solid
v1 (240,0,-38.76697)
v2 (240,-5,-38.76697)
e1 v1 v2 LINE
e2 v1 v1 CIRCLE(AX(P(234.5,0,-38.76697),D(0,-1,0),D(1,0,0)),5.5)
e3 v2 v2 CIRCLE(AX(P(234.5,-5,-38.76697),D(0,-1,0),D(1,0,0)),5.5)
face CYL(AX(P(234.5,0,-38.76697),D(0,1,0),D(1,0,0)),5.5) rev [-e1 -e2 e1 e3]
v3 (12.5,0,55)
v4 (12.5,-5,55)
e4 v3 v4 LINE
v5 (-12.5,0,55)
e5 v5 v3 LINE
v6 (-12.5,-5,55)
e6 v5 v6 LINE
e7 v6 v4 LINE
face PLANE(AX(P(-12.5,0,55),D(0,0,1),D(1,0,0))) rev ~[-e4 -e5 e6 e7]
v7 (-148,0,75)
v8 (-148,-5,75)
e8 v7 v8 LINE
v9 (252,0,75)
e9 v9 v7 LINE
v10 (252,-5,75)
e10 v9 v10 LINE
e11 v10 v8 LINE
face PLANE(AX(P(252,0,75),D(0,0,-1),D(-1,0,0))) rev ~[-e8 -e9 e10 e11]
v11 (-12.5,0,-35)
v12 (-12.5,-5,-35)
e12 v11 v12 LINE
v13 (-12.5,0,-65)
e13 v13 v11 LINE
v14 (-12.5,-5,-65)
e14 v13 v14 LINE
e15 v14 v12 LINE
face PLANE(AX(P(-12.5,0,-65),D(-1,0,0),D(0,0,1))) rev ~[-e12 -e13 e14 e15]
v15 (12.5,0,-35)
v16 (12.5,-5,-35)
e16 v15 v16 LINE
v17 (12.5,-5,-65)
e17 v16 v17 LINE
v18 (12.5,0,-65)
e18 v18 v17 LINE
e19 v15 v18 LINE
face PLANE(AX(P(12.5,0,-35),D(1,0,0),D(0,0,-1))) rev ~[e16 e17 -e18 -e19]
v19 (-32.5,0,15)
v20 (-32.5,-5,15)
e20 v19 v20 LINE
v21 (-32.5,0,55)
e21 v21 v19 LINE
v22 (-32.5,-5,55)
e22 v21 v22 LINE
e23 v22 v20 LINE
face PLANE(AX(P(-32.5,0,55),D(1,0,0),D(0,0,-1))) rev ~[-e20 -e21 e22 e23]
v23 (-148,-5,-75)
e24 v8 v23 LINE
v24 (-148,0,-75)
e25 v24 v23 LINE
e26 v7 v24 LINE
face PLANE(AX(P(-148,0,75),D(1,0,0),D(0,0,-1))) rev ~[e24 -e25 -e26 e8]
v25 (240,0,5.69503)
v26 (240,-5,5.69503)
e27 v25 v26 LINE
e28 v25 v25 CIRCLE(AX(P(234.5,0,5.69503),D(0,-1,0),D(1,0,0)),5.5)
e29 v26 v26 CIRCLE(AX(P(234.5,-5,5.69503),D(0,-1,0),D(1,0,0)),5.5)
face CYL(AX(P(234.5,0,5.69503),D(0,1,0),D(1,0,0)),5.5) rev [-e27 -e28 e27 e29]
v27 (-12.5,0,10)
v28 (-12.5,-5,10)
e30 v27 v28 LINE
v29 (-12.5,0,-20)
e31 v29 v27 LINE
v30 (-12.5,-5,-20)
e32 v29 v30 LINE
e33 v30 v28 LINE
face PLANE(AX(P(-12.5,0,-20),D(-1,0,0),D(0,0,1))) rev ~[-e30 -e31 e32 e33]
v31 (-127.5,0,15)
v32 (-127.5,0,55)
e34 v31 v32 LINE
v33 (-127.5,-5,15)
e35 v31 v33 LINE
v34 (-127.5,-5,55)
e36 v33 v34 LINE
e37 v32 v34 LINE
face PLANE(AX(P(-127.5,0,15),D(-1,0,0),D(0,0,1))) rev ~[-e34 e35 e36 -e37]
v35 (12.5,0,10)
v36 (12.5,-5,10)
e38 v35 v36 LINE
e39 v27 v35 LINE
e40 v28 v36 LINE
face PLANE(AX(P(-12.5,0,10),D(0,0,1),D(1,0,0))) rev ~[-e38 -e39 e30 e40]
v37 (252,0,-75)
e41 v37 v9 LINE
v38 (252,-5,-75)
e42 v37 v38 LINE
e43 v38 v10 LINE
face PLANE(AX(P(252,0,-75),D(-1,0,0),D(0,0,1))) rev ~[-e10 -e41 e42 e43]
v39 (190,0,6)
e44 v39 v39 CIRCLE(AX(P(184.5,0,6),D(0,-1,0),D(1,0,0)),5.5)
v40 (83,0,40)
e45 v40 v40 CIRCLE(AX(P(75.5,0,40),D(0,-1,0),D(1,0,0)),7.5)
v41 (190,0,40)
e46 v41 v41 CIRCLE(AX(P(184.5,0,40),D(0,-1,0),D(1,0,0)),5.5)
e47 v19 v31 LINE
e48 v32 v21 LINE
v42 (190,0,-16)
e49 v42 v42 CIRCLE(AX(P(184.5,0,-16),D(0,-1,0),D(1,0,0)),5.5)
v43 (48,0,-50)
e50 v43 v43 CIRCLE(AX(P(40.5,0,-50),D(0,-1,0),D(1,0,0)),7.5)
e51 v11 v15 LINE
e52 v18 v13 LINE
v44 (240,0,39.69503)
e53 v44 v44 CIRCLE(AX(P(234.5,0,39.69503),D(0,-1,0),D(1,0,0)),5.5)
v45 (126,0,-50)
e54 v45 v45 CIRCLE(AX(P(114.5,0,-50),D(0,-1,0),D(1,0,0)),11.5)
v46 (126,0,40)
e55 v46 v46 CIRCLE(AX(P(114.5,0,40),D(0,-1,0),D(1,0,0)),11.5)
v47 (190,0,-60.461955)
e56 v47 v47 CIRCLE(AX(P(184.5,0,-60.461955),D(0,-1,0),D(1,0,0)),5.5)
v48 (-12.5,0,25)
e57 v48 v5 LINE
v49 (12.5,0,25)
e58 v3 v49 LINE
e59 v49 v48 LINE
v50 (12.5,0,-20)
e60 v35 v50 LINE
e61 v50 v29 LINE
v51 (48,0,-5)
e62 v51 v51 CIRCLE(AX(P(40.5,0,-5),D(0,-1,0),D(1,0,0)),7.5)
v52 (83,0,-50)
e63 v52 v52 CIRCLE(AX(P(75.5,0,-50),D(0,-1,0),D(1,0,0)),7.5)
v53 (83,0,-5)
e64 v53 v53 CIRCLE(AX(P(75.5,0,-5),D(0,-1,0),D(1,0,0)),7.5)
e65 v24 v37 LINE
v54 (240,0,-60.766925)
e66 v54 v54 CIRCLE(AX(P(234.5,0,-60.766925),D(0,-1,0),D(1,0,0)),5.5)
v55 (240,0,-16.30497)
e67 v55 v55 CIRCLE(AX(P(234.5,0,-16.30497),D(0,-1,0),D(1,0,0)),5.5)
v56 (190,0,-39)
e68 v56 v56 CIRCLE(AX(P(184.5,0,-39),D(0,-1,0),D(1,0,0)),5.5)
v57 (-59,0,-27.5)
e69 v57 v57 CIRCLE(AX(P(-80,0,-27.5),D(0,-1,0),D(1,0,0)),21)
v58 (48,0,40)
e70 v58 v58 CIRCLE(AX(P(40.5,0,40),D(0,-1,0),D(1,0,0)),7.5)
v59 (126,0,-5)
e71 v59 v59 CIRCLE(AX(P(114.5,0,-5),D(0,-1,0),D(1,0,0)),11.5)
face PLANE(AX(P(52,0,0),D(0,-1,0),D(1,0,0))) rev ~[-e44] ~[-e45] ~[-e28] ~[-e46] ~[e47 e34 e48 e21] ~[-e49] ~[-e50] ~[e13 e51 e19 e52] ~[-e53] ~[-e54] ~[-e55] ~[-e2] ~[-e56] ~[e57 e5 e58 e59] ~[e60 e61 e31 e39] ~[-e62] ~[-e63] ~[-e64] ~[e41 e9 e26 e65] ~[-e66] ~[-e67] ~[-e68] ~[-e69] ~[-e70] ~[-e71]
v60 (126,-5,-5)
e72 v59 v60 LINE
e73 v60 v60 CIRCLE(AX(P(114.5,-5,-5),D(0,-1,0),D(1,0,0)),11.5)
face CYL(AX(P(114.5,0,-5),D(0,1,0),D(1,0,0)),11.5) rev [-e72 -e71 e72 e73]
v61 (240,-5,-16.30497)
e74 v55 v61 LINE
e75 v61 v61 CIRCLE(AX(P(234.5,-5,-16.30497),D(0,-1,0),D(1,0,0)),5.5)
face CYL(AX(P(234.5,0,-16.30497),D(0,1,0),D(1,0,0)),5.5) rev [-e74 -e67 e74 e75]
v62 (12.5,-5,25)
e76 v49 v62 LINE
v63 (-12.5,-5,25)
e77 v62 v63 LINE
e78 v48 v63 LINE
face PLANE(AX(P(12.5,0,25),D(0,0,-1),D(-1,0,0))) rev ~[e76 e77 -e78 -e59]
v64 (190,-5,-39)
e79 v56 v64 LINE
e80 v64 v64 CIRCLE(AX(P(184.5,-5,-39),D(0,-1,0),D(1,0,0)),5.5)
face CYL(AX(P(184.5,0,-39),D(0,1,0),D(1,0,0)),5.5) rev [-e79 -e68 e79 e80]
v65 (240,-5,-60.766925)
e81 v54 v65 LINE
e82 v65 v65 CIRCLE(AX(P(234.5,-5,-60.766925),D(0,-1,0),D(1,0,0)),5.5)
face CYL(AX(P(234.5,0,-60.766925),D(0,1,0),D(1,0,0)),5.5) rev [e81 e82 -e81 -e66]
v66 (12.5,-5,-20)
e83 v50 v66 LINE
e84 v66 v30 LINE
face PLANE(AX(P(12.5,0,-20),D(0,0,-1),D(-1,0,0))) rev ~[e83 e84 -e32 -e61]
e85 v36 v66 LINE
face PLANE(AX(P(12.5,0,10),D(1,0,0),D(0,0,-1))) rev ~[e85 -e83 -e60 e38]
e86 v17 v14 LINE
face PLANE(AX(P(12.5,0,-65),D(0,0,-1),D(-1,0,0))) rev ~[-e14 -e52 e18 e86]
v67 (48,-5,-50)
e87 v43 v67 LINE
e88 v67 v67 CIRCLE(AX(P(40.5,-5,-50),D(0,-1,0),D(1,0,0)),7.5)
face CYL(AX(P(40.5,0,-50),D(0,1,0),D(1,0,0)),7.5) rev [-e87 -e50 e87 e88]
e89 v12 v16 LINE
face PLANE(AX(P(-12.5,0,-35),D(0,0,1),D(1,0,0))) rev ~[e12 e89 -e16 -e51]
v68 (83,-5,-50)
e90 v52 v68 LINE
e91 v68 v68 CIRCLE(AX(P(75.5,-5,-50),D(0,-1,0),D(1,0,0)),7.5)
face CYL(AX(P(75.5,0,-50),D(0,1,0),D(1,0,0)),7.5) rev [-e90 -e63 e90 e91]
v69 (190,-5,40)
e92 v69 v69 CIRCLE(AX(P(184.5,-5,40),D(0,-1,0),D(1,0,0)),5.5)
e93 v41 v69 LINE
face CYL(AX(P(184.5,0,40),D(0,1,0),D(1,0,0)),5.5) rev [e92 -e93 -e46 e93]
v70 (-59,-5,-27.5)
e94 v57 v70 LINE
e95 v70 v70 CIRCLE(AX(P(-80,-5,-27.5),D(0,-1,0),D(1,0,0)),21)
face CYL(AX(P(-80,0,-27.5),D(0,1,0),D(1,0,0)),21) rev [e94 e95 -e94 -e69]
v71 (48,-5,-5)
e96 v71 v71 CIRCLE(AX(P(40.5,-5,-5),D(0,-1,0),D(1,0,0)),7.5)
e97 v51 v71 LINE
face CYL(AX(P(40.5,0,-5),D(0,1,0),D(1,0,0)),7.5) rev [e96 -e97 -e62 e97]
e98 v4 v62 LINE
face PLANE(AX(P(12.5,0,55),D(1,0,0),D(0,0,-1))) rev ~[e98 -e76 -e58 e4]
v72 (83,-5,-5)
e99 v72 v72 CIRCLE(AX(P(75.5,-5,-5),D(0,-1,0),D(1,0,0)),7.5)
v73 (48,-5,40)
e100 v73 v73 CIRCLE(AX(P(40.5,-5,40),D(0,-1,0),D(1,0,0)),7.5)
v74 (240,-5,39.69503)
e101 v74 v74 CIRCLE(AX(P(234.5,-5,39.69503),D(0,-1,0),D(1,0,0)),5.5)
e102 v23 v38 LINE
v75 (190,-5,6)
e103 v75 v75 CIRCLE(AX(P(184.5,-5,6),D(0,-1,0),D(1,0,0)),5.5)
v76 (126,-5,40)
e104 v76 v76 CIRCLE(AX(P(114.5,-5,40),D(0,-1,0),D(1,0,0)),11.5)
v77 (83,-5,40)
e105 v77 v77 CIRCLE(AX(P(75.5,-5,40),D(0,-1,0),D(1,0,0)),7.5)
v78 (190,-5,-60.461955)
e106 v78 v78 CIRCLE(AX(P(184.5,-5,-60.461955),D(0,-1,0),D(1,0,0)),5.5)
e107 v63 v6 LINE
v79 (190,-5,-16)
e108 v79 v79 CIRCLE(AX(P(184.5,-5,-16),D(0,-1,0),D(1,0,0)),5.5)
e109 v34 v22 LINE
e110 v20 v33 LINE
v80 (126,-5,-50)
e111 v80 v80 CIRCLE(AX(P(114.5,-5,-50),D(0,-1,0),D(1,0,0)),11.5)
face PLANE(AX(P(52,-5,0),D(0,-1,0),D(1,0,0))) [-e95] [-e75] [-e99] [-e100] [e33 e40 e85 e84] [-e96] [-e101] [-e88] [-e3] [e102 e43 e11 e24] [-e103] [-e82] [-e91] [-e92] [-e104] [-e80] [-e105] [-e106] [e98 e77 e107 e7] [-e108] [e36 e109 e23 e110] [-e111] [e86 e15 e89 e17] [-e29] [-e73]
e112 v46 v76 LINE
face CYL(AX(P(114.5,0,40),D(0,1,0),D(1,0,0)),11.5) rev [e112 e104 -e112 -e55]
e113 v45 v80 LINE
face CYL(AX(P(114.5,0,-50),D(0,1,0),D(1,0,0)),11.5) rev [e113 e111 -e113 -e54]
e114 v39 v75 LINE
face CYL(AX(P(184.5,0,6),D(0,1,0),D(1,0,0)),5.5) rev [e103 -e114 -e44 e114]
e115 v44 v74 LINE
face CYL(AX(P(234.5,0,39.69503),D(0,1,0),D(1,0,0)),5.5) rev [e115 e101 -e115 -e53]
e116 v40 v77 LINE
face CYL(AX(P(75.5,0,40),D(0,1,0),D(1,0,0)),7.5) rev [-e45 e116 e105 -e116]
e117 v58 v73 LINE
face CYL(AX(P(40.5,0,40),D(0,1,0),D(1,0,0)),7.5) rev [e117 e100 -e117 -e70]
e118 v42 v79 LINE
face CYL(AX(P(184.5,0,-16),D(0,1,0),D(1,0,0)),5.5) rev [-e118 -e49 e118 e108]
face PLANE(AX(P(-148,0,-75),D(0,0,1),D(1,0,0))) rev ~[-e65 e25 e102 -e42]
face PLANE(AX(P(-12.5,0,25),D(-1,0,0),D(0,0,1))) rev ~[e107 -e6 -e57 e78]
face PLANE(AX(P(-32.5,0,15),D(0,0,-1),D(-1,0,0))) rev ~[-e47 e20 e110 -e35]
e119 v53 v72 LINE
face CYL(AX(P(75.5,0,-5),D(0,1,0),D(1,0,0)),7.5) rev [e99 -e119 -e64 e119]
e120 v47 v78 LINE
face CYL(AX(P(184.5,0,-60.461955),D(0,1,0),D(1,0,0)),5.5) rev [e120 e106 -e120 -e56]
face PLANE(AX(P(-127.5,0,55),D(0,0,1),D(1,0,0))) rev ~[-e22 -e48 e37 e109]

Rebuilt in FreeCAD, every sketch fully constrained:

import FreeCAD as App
import Part
import Sketcher

V = App.Vector

doc = App.newDocument("Part")
body = doc.addObject("PartDesign::Body", "Body")

# Sketch on XZ plane
sketch1 = doc.addObject("Sketcher::SketchObject", "Sketch")
body.addObject(sketch1)
sketch1.AttachmentSupport = (doc.XZ_Plane, [""])
sketch1.MapMode = "FlatFace"
sketch1.addGeometry([
    Part.LineSegment(V(252, 75, 0), V(-148, 75, 0)),  # 0
    Part.LineSegment(V(-148, 75, 0), V(-148, -75, 0)),  # 1
    Part.LineSegment(V(-148, -75, 0), V(252, -75, 0)),  # 2
    Part.LineSegment(V(252, -75, 0), V(252, 75, 0)),  # 3
    Part.LineSegment(V(12, -35, 0), V(12, -65, 0)),  # 4
    Part.LineSegment(V(12, -65, 0), V(-12, -65, 0)),  # 5
    Part.LineSegment(V(-12, -65, 0), V(-12, -35, 0)),  # 6
    Part.LineSegment(V(-12, -35, 0), V(12, -35, 0)),  # 7
    Part.Circle(V(40, -50, 0), V(0, 0, 1), 8),  # 8
    Part.Circle(V(-80, -28, 0), V(0, 0, 1), 21),  # 9
    Part.Circle(V(76, -50, 0), V(0, 0, 1), 8),  # 10
    Part.Circle(V(114, -50, 0), V(0, 0, 1), 12),  # 11
    Part.Circle(V(184, -60, 0), V(0, 0, 1), 6),  # 12
    Part.Circle(V(234, -61, 0), V(0, 0, 1), 6),  # 13
    Part.Circle(V(184, -39, 0), V(0, 0, 1), 6),  # 14
    Part.Circle(V(234, -39, 0), V(0, 0, 1), 6),  # 15
    Part.Circle(V(184, -16, 0), V(0, 0, 1), 6),  # 16
    Part.Circle(V(234, -16, 0), V(0, 0, 1), 6),  # 17
    Part.LineSegment(V(-12, -20, 0), V(-12, 10, 0)),  # 18
    Part.LineSegment(V(-12, 10, 0), V(12, 10, 0)),  # 19
    Part.LineSegment(V(12, 10, 0), V(12, -20, 0)),  # 20
    Part.LineSegment(V(12, -20, 0), V(-12, -20, 0)),  # 21
    Part.Circle(V(40, -5, 0), V(0, 0, 1), 8),  # 22
    Part.LineSegment(V(-32, 15, 0), V(-128, 15, 0)),  # 23
    Part.LineSegment(V(-128, 15, 0), V(-128, 55, 0)),  # 24
    Part.LineSegment(V(-128, 55, 0), V(-32, 55, 0)),  # 25
    Part.LineSegment(V(-32, 55, 0), V(-32, 15, 0)),  # 26
    Part.LineSegment(V(-12, 25, 0), V(-12, 55, 0)),  # 27
    Part.LineSegment(V(-12, 55, 0), V(12, 55, 0)),  # 28
    Part.LineSegment(V(12, 55, 0), V(12, 25, 0)),  # 29
    Part.LineSegment(V(12, 25, 0), V(-12, 25, 0)),  # 30
    Part.Circle(V(40, 40, 0), V(0, 0, 1), 8),  # 31
    Part.Circle(V(76, -5, 0), V(0, 0, 1), 8),  # 32
    Part.Circle(V(114, -5, 0), V(0, 0, 1), 12),  # 33
    Part.Circle(V(184, 6, 0), V(0, 0, 1), 6),  # 34
    Part.Circle(V(234, 6, 0), V(0, 0, 1), 6),  # 35
    Part.Circle(V(76, 40, 0), V(0, 0, 1), 8),  # 36
    Part.Circle(V(114, 40, 0), V(0, 0, 1), 12),  # 37
    Part.Circle(V(234, 40, 0), V(0, 0, 1), 6),  # 38
    Part.Circle(V(184, 40, 0), V(0, 0, 1), 6),  # 39
], False)
sketch1.addConstraint([
    Sketcher.Constraint("Coincident", 0, 2, 1, 1),
    Sketcher.Constraint("Coincident", 1, 2, 2, 1),
    Sketcher.Constraint("Coincident", 2, 2, 3, 1),
    Sketcher.Constraint("Coincident", 3, 2, 0, 1),
    Sketcher.Constraint("Coincident", 4, 2, 5, 1),
    Sketcher.Constraint("Coincident", 5, 2, 6, 1),
    Sketcher.Constraint("Coincident", 6, 2, 7, 1),
    Sketcher.Constraint("Coincident", 7, 2, 4, 1),
    Sketcher.Constraint("Coincident", 18, 2, 19, 1),
    Sketcher.Constraint("Coincident", 19, 2, 20, 1),
    Sketcher.Constraint("Coincident", 20, 2, 21, 1),
    Sketcher.Constraint("Coincident", 21, 2, 18, 1),
    Sketcher.Constraint("Coincident", 23, 2, 24, 1),
    Sketcher.Constraint("Coincident", 24, 2, 25, 1),
    Sketcher.Constraint("Coincident", 25, 2, 26, 1),
    Sketcher.Constraint("Coincident", 26, 2, 23, 1),
    Sketcher.Constraint("Coincident", 27, 2, 28, 1),
    Sketcher.Constraint("Coincident", 28, 2, 29, 1),
    Sketcher.Constraint("Coincident", 29, 2, 30, 1),
    Sketcher.Constraint("Coincident", 30, 2, 27, 1),
    Sketcher.Constraint("Horizontal", 0),
    Sketcher.Constraint("Vertical", 1),
    Sketcher.Constraint("Horizontal", 2),
    Sketcher.Constraint("Vertical", 3),
    Sketcher.Constraint("Vertical", 4),
    Sketcher.Constraint("Horizontal", 5),
    Sketcher.Constraint("Vertical", 6),
    Sketcher.Constraint("Horizontal", 7),
    Sketcher.Constraint("Vertical", 18),
    Sketcher.Constraint("Horizontal", 19),
    Sketcher.Constraint("Vertical", 20),
    Sketcher.Constraint("Horizontal", 21),
    Sketcher.Constraint("Horizontal", 23),
    Sketcher.Constraint("Vertical", 24),
    Sketcher.Constraint("Horizontal", 25),
    Sketcher.Constraint("Vertical", 26),
    Sketcher.Constraint("Vertical", 27),
    Sketcher.Constraint("Horizontal", 28),
    Sketcher.Constraint("Vertical", 29),
    Sketcher.Constraint("Horizontal", 30),
    Sketcher.Constraint("Equal", 8, 10),
    Sketcher.Constraint("Equal", 12, 13),
    Sketcher.Constraint("Equal", 13, 14),
    Sketcher.Constraint("Equal", 14, 15),
    Sketcher.Constraint("Equal", 15, 16),
    Sketcher.Constraint("Equal", 16, 17),
    Sketcher.Constraint("Equal", 10, 22),
    Sketcher.Constraint("Equal", 22, 31),
    Sketcher.Constraint("Equal", 31, 32),
    Sketcher.Constraint("Equal", 11, 33),
    Sketcher.Constraint("Equal", 17, 34),
    Sketcher.Constraint("Equal", 34, 35),
    Sketcher.Constraint("Equal", 32, 36),
    Sketcher.Constraint("Equal", 33, 37),
    Sketcher.Constraint("Equal", 35, 38),
    Sketcher.Constraint("Equal", 38, 39),
    Sketcher.Constraint("Horizontal", 8, 3, 10, 3),
    Sketcher.Constraint("Horizontal", 10, 3, 11, 3),
    Sketcher.Constraint("Horizontal", 22, 3, 32, 3),
    Sketcher.Constraint("Horizontal", 32, 3, 33, 3),
    Sketcher.Constraint("Horizontal", 31, 3, 36, 3),
    Sketcher.Constraint("Horizontal", 36, 3, 37, 3),
    Sketcher.Constraint("Horizontal", 37, 3, 39, 3),
    Sketcher.Constraint("Horizontal", 25, 2, 27, 2),
    Sketcher.Constraint("Vertical", 12, 3, 14, 3),
    Sketcher.Constraint("Vertical", 13, 3, 15, 3),
    Sketcher.Constraint("Vertical", 14, 3, 16, 3),
    Sketcher.Constraint("Vertical", 15, 3, 17, 3),
    Sketcher.Constraint("Vertical", 8, 3, 22, 3),
    Sketcher.Constraint("Vertical", 22, 3, 31, 3),
    Sketcher.Constraint("Vertical", 10, 3, 32, 3),
    Sketcher.Constraint("Vertical", 11, 3, 33, 3),
    Sketcher.Constraint("Vertical", 16, 3, 34, 3),
    Sketcher.Constraint("Vertical", 17, 3, 35, 3),
    Sketcher.Constraint("Vertical", 32, 3, 36, 3),
    Sketcher.Constraint("Vertical", 33, 3, 37, 3),
    Sketcher.Constraint("Vertical", 35, 3, 38, 3),
    Sketcher.Constraint("Vertical", 34, 3, 39, 3),
    Sketcher.Constraint("Vertical", 6, 2, 18, 2),
    Sketcher.Constraint("Vertical", 7, 2, 19, 2),
    Sketcher.Constraint("Vertical", 21, 2, 27, 2),
    Sketcher.Constraint("Vertical", 20, 2, 28, 2),
    Sketcher.Constraint("Equal", 6, 18),
    Sketcher.Constraint("Equal", 20, 27),
    Sketcher.Constraint("Diameter", 8, 15.0),
    Sketcher.Constraint("Diameter", 9, 42.0),
    Sketcher.Constraint("Diameter", 11, 23.0),
    Sketcher.Constraint("Diameter", 12, 11.0),
    Sketcher.Constraint("DistanceX", 0, 2, 0, 1, 400.0),
    Sketcher.Constraint("DistanceX", 5, 2, 5, 1, 25.0),
    Sketcher.Constraint("DistanceX", 23, 2, 23, 1, 95.0),
    Sketcher.Constraint("DistanceY", 1, 2, 1, 1, 150.0),
    Sketcher.Constraint("DistanceY", 4, 2, 4, 1, 30.0),
    Sketcher.Constraint("DistanceY", 24, 1, 24, 2, 40.0),
    Sketcher.Constraint("DistanceY", 8, 3, -1, 1, 50.0),
    Sketcher.Constraint("DistanceX", 9, 3, -1, 1, 80.0),
    Sketcher.Constraint("DistanceY", 14, 3, -1, 1, 39.0),
    Sketcher.Constraint("DistanceY", 16, 3, -1, 1, 16.0),
    Sketcher.Constraint("DistanceY", 22, 3, -1, 1, 5.0),
    Sketcher.Constraint("DistanceY", -1, 1, 31, 3, 40.0),
    Sketcher.Constraint("DistanceY", -1, 1, 34, 3, 6.0),
    Sketcher.Constraint("DistanceX", 0, 2, -1, 1, 148.0),
    Sketcher.Constraint("DistanceY", -1, 1, 0, 2, 75.0),
    Sketcher.Constraint("DistanceY", 4, 2, -1, 1, 65.0),
    Sketcher.Constraint("DistanceY", -1, 1, 18, 2, 10.0),
    Sketcher.Constraint("DistanceY", -1, 1, 23, 2, 15.0),
    Sketcher.Constraint("DistanceX", 8, 3, 10, 3, 35.0),
    Sketcher.Constraint("DistanceX", 10, 3, 11, 3, 39.0),
    Sketcher.Constraint("DistanceX", 11, 3, 12, 3, 70.0),
    Sketcher.Constraint("DistanceX", 12, 3, 13, 3, 50.0),
    Sketcher.Constraint("DistanceY", 17, 3, 35, 3, 22.0),
    Sketcher.Constraint("DistanceY", 35, 3, 38, 3, 34.0),
    Sketcher.Constraint("DistanceX", 4, 2, 8, 3, 28.0),
    Sketcher.Constraint("DistanceX", 23, 2, 18, 2, 115.0),
    Sketcher.Constraint("DistanceX", -1, 1, 8, 3, 40.5),
    Sketcher.Constraint("DistanceY", 9, 3, -1, 1, 27.5),
    Sketcher.Constraint("DistanceY", 15, 3, 17, 3, 22.462),
    Sketcher.Constraint("DistanceY", 15, 3, -1, 1, 38.76697),
    Sketcher.Constraint("DistanceY", 13, 3, 12, 3, 0.30497),
    Sketcher.Constraint("DistanceY", 12, 3, -1, 1, 60.461955),
])
pad1 = doc.addObject("PartDesign::Pad", "Pad")
body.addObject(pad1)
pad1.Profile = sketch1
pad1.Length = 5

doc.recompute()
